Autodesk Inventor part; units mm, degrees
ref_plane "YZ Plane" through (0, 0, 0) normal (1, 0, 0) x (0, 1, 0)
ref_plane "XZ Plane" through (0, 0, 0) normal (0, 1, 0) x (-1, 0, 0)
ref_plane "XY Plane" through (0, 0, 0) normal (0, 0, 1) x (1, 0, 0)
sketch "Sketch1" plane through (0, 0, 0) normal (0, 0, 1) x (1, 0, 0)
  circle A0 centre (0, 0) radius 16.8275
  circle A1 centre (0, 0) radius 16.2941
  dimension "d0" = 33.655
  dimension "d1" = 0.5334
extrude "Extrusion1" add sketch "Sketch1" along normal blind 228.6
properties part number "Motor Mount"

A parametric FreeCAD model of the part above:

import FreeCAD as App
import Part
import Sketcher
from FreeCAD import Vector
Q = App.Units.Quantity

doc = App.newDocument("Part")
body = doc.addObject("PartDesign::Body", "Body")

# Sketch on XY plane
sketch1 = body.newObject("Sketcher::SketchObject", "Sketch")
sketch1.AttachmentSupport = (doc.getObject("XY_Plane"), [""])
sketch1.MapMode = "FlatFace"
sketch1.addGeometry(Part.Circle(Vector(0, 0, 0), Vector(0, 0, 1), 17), False)
sketch1.addGeometry(Part.Circle(Vector(0, 0, 0), Vector(0, 0, 1), 16), False)
sketch1.addConstraint(Sketcher.Constraint("Coincident", 0, 3, -1, 1))
sketch1.addConstraint(Sketcher.Constraint("Coincident", 1, 3, -1, 1))
sketch1.addConstraint(Sketcher.Constraint("Diameter", 0, Q("1.325 in")))
sketch1.addConstraint(Sketcher.Constraint("Diameter", 1, Q("1.283 in")))
pad1 = body.newObject("PartDesign::Pad", "Pad")
pad1.Profile = sketch1
pad1.Length = Q("9 in")

doc.recompute()
